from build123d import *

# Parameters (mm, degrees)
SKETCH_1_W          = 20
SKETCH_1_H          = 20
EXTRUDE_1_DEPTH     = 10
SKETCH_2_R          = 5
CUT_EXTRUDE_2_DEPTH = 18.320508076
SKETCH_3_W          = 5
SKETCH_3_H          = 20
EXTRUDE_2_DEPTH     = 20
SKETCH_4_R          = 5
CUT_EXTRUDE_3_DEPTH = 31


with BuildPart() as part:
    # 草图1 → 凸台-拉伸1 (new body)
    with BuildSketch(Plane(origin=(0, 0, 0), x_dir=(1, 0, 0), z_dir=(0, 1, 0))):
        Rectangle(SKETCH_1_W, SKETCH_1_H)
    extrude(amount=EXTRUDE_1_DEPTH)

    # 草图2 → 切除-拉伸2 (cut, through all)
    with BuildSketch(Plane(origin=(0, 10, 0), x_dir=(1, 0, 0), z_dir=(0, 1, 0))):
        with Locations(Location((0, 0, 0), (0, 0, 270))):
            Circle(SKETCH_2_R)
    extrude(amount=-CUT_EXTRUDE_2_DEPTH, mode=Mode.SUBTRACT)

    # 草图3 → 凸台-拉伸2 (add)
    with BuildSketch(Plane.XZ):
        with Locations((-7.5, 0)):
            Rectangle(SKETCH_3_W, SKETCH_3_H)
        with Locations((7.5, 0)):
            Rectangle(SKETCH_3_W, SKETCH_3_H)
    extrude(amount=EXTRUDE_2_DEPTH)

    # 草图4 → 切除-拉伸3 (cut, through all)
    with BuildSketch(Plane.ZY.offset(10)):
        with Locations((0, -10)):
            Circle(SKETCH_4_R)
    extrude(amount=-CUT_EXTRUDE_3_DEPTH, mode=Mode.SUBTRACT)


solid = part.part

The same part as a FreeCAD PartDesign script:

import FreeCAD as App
import Part
import Sketcher


def add_polygon(sketch, points):
    """Adds a closed chain of lines whose ends are joined by coincident constraints."""
    first, n = sketch.GeometryCount, len(points)
    for a, b in zip(points, points[1:] + points[:1]):
        sketch.addGeometry(Part.LineSegment(App.Vector(*a, 0), App.Vector(*b, 0)), False)
    for i in range(n):
        sketch.addConstraint(Sketcher.Constraint("Coincident", first + i, 2, first + (i + 1) % n, 1))

doc = App.newDocument("Part")
body = doc.addObject("PartDesign::Body", "Body")

# Sketch on XZ plane
sketch1 = body.newObject("Sketcher::SketchObject", "Sketch")
sketch1.AttachmentSupport = (doc.getObject("XZ_Plane"), [""])
sketch1.MapMode = "FlatFace"
add_polygon(sketch1, [(-10, -10), (-10, 10), (10, 10), (10, -10)])  # lines 0-3
sketch1.addConstraint([
    Sketcher.Constraint("Vertical", 0),
    Sketcher.Constraint("Horizontal", 1),
    Sketcher.Constraint("Vertical", 2),
    Sketcher.Constraint("Horizontal", 3),
    Sketcher.Constraint("Symmetric", 0, 2, 2, 2, -1, 1),
    Sketcher.Constraint("Equal", 3, 0),
    Sketcher.Constraint("DistanceX", 1, 1, 1, 2, 20.0),
])
pad1 = body.newObject("PartDesign::Pad", "Pad")
pad1.Profile = sketch1
pad1.Length = 10
pad1.Reversed = True

# Sketch on XZ plane
sketch2 = body.newObject("Sketcher::SketchObject", "Sketch001")
sketch2.AttachmentSupport = (doc.getObject("XZ_Plane"), [""])
sketch2.MapMode = "FlatFace"
sketch2.AttachmentOffset = App.Placement(App.Vector(0, 0, -10), App.Rotation())
sketch2.addGeometry(Part.Circle(App.Vector(0, 0, 0), App.Vector(0, 0, 1), 5), False)
sketch2.addConstraint([
    Sketcher.Constraint("Coincident", 0, 3, -1, 1),
    Sketcher.Constraint("Diameter", 0, 10.0),
])
pocket1 = body.newObject("PartDesign::Pocket", "Pocket")
pocket1.Profile = sketch2
pocket1.Type = "ThroughAll"
pocket1.Reversed = True

# Sketch on XZ plane
sketch3 = body.newObject("Sketcher::SketchObject", "Sketch002")
sketch3.AttachmentSupport = (doc.getObject("XZ_Plane"), [""])
sketch3.MapMode = "FlatFace"
add_polygon(sketch3, [(-10, 10), (-10, -10), (-5, -10), (-5, 10)])  # lines 0-3
add_polygon(sketch3, [(5, 10), (5, -10), (10, -10), (10, 10)])  # lines 4-7
sketch3.addConstraint([
    Sketcher.Constraint("Vertical", 0),
    Sketcher.Constraint("Horizontal", 1),
    Sketcher.Constraint("Vertical", 2),
    Sketcher.Constraint("Horizontal", 3),
    Sketcher.Constraint("Vertical", 4),
    Sketcher.Constraint("Horizontal", 5),
    Sketcher.Constraint("Vertical", 6),
    Sketcher.Constraint("Horizontal", 7),
    Sketcher.Constraint("Symmetric", 2, 2, 4, 2, -1, 1),
    Sketcher.Constraint("Symmetric", 0, 2, 6, 2, -1, 1),
    Sketcher.Constraint("Horizontal", 1, 2, 4, 2),
    Sketcher.Constraint("DistanceX", 1, 1, 1, 2, 5.0),
    Sketcher.Constraint("DistanceY", 0, 2, 0, 1, 20.0),
    Sketcher.Constraint("DistanceX", 0, 2, -1, 1, 10.0),
])
pad2 = body.newObject("PartDesign::Pad", "Pad001")
pad2.Profile = sketch3
pad2.Length = 20

# Sketch on YZ plane
sketch4 = body.newObject("Sketcher::SketchObject", "Sketch003")
sketch4.AttachmentSupport = (doc.getObject("YZ_Plane"), [""])
sketch4.MapMode = "FlatFace"
sketch4.AttachmentOffset = App.Placement(App.Vector(0, 0, -10), App.Rotation())
sketch4.addGeometry(Part.Circle(App.Vector(-10, 0, 0), App.Vector(0, 0, 1), 5), False)
sketch4.addConstraint([
    Sketcher.Constraint("PointOnObject", 0, 3, -1),
    Sketcher.Constraint("Diameter", 0, 10.0),
    Sketcher.Constraint("DistanceX", 0, 3, -1, 1, 10.0),
])
pocket2 = body.newObject("PartDesign::Pocket", "Pocket001")
pocket2.Profile = sketch4
pocket2.Type = "ThroughAll"
pocket2.Reversed = True

doc.recompute()
